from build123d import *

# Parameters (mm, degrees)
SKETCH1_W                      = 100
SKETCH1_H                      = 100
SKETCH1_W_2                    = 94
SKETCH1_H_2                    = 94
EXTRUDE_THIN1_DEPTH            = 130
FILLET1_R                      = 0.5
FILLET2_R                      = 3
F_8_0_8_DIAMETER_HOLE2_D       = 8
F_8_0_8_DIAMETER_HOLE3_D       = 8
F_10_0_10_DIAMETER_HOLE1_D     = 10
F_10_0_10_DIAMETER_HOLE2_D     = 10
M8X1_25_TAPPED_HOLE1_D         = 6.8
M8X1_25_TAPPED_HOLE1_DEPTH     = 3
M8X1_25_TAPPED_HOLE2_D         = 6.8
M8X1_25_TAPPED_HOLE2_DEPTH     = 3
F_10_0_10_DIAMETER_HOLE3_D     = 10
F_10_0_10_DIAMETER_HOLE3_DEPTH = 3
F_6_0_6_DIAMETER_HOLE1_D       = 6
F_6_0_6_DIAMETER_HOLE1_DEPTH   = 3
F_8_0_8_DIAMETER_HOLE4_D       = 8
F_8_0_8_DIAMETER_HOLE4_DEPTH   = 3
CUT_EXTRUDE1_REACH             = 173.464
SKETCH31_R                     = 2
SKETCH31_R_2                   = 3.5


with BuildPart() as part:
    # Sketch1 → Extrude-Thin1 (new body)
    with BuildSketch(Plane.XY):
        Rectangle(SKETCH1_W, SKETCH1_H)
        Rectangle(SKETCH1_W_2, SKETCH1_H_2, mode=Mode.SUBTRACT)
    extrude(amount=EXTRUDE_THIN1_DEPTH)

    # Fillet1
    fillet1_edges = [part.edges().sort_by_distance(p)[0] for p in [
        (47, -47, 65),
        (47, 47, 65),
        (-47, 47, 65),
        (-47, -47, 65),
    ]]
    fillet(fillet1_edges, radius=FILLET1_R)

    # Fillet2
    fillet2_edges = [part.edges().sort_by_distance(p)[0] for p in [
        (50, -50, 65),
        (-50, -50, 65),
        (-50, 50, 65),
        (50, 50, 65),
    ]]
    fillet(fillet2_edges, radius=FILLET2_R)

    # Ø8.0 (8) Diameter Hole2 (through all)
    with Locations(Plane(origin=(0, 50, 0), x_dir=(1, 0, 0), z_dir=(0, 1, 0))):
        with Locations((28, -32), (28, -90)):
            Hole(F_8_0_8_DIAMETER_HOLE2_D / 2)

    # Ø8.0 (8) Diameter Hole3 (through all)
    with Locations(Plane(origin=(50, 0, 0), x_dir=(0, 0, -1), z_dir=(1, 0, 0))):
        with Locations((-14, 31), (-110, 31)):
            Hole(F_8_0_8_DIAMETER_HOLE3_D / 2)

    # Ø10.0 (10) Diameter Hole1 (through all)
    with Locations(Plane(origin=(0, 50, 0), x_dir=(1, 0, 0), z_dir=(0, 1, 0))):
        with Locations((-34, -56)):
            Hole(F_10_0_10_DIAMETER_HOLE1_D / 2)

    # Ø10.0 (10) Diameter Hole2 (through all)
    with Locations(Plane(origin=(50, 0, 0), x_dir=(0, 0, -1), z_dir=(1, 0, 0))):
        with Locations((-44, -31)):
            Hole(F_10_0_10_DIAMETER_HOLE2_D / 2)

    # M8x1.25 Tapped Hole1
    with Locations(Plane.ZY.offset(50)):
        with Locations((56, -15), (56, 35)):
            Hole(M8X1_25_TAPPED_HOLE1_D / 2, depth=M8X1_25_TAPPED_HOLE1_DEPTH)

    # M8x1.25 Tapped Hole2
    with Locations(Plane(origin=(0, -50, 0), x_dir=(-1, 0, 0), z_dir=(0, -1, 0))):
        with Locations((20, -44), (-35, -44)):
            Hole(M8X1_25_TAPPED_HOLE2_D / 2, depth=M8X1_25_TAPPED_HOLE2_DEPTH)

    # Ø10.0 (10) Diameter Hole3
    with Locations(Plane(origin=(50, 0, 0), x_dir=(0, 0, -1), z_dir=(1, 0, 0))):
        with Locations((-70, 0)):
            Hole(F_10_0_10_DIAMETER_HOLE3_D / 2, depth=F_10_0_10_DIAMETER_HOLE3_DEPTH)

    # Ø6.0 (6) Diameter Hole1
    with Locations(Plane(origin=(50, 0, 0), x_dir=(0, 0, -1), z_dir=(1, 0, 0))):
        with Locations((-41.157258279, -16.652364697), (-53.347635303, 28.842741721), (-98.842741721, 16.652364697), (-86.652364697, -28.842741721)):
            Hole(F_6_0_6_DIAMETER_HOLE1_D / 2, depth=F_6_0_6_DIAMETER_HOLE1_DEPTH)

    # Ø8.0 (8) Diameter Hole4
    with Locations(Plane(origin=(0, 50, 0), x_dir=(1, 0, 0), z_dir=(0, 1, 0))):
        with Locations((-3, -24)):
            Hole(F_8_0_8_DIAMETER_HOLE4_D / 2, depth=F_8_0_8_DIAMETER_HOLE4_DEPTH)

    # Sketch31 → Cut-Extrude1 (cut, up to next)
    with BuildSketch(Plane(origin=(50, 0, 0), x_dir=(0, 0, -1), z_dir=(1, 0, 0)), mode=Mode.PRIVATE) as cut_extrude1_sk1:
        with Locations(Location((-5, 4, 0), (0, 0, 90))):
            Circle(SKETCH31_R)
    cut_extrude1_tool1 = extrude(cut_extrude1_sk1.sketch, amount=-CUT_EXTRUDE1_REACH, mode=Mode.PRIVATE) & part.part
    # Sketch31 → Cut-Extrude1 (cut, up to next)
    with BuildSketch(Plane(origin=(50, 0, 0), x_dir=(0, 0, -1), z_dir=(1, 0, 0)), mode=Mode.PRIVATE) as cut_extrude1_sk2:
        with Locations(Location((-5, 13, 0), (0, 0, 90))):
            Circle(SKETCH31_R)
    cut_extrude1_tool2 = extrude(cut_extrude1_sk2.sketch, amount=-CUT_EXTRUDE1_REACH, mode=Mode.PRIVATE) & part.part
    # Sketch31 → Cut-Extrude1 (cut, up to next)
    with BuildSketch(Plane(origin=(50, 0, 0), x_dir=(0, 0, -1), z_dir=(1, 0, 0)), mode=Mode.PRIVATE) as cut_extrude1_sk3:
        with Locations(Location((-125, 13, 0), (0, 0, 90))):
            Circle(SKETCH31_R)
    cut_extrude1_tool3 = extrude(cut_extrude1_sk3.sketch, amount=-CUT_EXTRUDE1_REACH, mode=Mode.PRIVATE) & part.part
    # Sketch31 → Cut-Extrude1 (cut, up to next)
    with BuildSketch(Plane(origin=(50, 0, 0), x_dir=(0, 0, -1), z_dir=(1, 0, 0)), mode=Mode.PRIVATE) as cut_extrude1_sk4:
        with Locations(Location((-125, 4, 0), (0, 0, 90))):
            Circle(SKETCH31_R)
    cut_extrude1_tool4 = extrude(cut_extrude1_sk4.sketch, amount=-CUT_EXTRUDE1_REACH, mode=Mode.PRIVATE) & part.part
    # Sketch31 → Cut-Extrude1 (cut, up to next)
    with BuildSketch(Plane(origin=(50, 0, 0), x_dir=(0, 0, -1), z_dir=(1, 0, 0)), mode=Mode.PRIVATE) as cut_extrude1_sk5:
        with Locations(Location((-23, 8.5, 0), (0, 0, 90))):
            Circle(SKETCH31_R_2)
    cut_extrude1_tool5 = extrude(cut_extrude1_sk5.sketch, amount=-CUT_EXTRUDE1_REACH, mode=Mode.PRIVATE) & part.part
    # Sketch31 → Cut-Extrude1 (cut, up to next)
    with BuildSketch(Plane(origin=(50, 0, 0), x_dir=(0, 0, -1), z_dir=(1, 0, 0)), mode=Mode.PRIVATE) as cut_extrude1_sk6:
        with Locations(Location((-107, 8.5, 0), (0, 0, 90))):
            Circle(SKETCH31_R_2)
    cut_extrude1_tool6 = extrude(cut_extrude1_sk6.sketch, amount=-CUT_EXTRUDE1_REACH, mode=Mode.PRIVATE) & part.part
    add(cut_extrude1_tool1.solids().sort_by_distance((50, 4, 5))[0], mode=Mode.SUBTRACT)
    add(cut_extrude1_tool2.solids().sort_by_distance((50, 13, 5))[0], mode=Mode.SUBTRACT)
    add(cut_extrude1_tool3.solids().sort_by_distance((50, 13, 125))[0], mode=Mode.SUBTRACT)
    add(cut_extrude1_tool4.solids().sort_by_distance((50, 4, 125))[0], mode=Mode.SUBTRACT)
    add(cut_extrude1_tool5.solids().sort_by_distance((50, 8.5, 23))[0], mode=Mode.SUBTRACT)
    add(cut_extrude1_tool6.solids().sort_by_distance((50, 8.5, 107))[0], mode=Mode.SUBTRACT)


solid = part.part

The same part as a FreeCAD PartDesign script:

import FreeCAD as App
import Part
import Sketcher
from FreeCAD import Vector
Q = App.Units.Quantity


def edges_at(feature, points):
    """Names of the edges that pass closest to the given points."""
    edges = feature.Shape.Edges
    near = lambda p: min(range(len(edges)), key=lambda i: edges[i].distToShape(Part.Vertex(*p))[0])
    return sorted({f"Edge{near(p) + 1}" for p in points})

doc = App.newDocument("Part")
body = doc.addObject("PartDesign::Body", "Body")

# Sketch on XY plane
sketch1 = body.newObject("Sketcher::SketchObject", "Sketch")
sketch1.AttachmentSupport = (doc.getObject("XY_Plane"), [""])
sketch1.MapMode = "FlatFace"
sketch1.addGeometry([
    Part.LineSegment(Vector(-50, 50, 0), Vector(-50, -50, 0)),  # 0
    Part.LineSegment(Vector(-50, -50, 0), Vector(50, -50, 0)),  # 1
    Part.LineSegment(Vector(50, -50, 0), Vector(50, 50, 0)),  # 2
    Part.LineSegment(Vector(50, 50, 0), Vector(-50, 50, 0)),  # 3
    Part.LineSegment(Vector(47, -47, 0), Vector(-47, -47, 0)),  # 4
    Part.LineSegment(Vector(-47, -47, 0), Vector(-47, 47, 0)),  # 5
    Part.LineSegment(Vector(-47, 47, 0), Vector(47, 47, 0)),  # 6
    Part.LineSegment(Vector(47, 47, 0), Vector(47, -47, 0)),  # 7
], False)
sketch1.addConstraint([
    Sketcher.Constraint("Coincident", 0, 2, 1, 1),
    Sketcher.Constraint("Coincident", 1, 2, 2, 1),
    Sketcher.Constraint("Coincident", 2, 2, 3, 1),
    Sketcher.Constraint("Coincident", 3, 2, 0, 1),
    Sketcher.Constraint("Coincident", 4, 2, 5, 1),
    Sketcher.Constraint("Coincident", 5, 2, 6, 1),
    Sketcher.Constraint("Coincident", 6, 2, 7, 1),
    Sketcher.Constraint("Coincident", 7, 2, 4, 1),
    Sketcher.Constraint("Vertical", 0),
    Sketcher.Constraint("Horizontal", 1),
    Sketcher.Constraint("Vertical", 2),
    Sketcher.Constraint("Horizontal", 3),
    Sketcher.Constraint("Horizontal", 4),
    Sketcher.Constraint("Vertical", 5),
    Sketcher.Constraint("Horizontal", 6),
    Sketcher.Constraint("Vertical", 7),
    Sketcher.Constraint("Symmetric", 0, 2, 2, 2, -1, 1),
    Sketcher.Constraint("Symmetric", 4, 2, 6, 2, -1, 1),
    Sketcher.Constraint("Equal", 3, 0),
    Sketcher.Constraint("Equal", 6, 5),
    Sketcher.Constraint("DistanceX", 1, 1, 1, 2, Q("100 mm")),
    Sketcher.Constraint("DistanceX", 4, 2, 4, 1, Q("94 mm")),
])
pad1 = body.newObject("PartDesign::Pad", "Pad")
pad1.Profile = sketch1
pad1.Length = 130
doc.recompute()

fillet = body.newObject("PartDesign::Fillet", "Fillet")
fillet.Base = (pad1, edges_at(pad1, [
    (47, -47, 65),
    (47, 47, 65),
    (-47, 47, 65),
    (-47, -47, 65),
]))
fillet.Radius = 0.5
doc.recompute()

fillet2 = body.newObject("PartDesign::Fillet", "Fillet001")
fillet2.Base = (fillet, edges_at(fillet, [
    (50, -50, 65),
    (-50, -50, 65),
    (-50, 50, 65),
    (50, 50, 65),
]))
fillet2.Radius = 3

# Sketch on XZ plane
sketch2 = body.newObject("Sketcher::SketchObject", "Sketch001")
sketch2.AttachmentSupport = (doc.getObject("XZ_Plane"), [""])
sketch2.MapMode = "FlatFace"
sketch2.AttachmentOffset = App.Placement(Vector(0, 0, -50), App.Rotation())
sketch2.addGeometry([
    Part.Circle(Vector(28, 32, 0), Vector(0, 0, 1), 4),
    Part.Circle(Vector(28, 90, 0), Vector(0, 0, 1), 4),
], False)
sketch2.addConstraint([
    Sketcher.Constraint("Equal", 0, 1),
    Sketcher.Constraint("Vertical", 0, 3, 1, 3),
    Sketcher.Constraint("Diameter", 0, Q("8 mm")),
    Sketcher.Constraint("DistanceX", -1, 1, 0, 3, Q("28 mm")),
    Sketcher.Constraint("DistanceY", -1, 1, 0, 3, Q("32 mm")),
    Sketcher.Constraint("DistanceY", -1, 1, 1, 3, Q("90 mm")),
])
doc.recompute()
hole = body.newObject("PartDesign::Hole", "Hole")
hole.Profile = sketch2
hole.ThreadType = "None"
hole.Diameter = 8
hole.DepthType = "ThroughAll"
hole.Reversed = True

# Sketch on YZ plane
sketch3 = body.newObject("Sketcher::SketchObject", "Sketch002")
sketch3.AttachmentSupport = (doc.getObject("YZ_Plane"), [""])
sketch3.MapMode = "FlatFace"
sketch3.AttachmentOffset = App.Placement(Vector(0, 0, 50), App.Rotation())
sketch3.addGeometry([
    Part.Circle(Vector(31, 14, 0), Vector(0, 0, 1), 4),
    Part.Circle(Vector(31, 110, 0), Vector(0, 0, 1), 4),
], False)
sketch3.addConstraint([
    Sketcher.Constraint("Equal", 0, 1),
    Sketcher.Constraint("Vertical", 0, 3, 1, 3),
    Sketcher.Constraint("Diameter", 0, Q("8 mm")),
    Sketcher.Constraint("DistanceX", -1, 1, 0, 3, Q("31 mm")),
    Sketcher.Constraint("DistanceY", -1, 1, 0, 3, Q("14 mm")),
    Sketcher.Constraint("DistanceY", -1, 1, 1, 3, Q("110 mm")),
])
doc.recompute()
hole2 = body.newObject("PartDesign::Hole", "Hole001")
hole2.Profile = sketch3
hole2.ThreadType = "None"
hole2.Diameter = 8
hole2.DepthType = "ThroughAll"

# Sketch on XZ plane
sketch4 = body.newObject("Sketcher::SketchObject", "Sketch003")
sketch4.AttachmentSupport = (doc.getObject("XZ_Plane"), [""])
sketch4.MapMode = "FlatFace"
sketch4.AttachmentOffset = App.Placement(Vector(0, 0, -50), App.Rotation())
sketch4.addGeometry(Part.Circle(Vector(-34, 56, 0), Vector(0, 0, 1), 5), False)
sketch4.addConstraint([
    Sketcher.Constraint("Diameter", 0, Q("10 mm")),
    Sketcher.Constraint("DistanceX", 0, 3, -1, 1, Q("34 mm")),
    Sketcher.Constraint("DistanceY", -1, 1, 0, 3, Q("56 mm")),
])
doc.recompute()
hole3 = body.newObject("PartDesign::Hole", "Hole002")
hole3.Profile = sketch4
hole3.ThreadType = "None"
hole3.Diameter = 10
hole3.DepthType = "ThroughAll"
hole3.Reversed = True

# Sketch on YZ plane
sketch5 = body.newObject("Sketcher::SketchObject", "Sketch004")
sketch5.AttachmentSupport = (doc.getObject("YZ_Plane"), [""])
sketch5.MapMode = "FlatFace"
sketch5.AttachmentOffset = App.Placement(Vector(0, 0, 50), App.Rotation())
sketch5.addGeometry(Part.Circle(Vector(-31, 44, 0), Vector(0, 0, 1), 5), False)
sketch5.addConstraint([
    Sketcher.Constraint("Diameter", 0, Q("10 mm")),
    Sketcher.Constraint("DistanceX", 0, 3, -1, 1, Q("31 mm")),
    Sketcher.Constraint("DistanceY", -1, 1, 0, 3, Q("44 mm")),
])
doc.recompute()
hole4 = body.newObject("PartDesign::Hole", "Hole003")
hole4.Profile = sketch5
hole4.ThreadType = "None"
hole4.Diameter = 10
hole4.DepthType = "ThroughAll"

# Sketch on YZ plane
sketch6 = body.newObject("Sketcher::SketchObject", "Sketch005")
sketch6.AttachmentSupport = (doc.getObject("YZ_Plane"), [""])
sketch6.MapMode = "FlatFace"
sketch6.AttachmentOffset = App.Placement(Vector(0, 0, -50), App.Rotation())
sketch6.addGeometry([
    Part.Circle(Vector(-15, 56, 0), Vector(0, 0, 1), 3.4),
    Part.Circle(Vector(35, 56, 0), Vector(0, 0, 1), 3.4),
], False)
sketch6.addConstraint([
    Sketcher.Constraint("Equal", 0, 1),
    Sketcher.Constraint("Horizontal", 0, 3, 1, 3),
    Sketcher.Constraint("Diameter", 0, Q("6.8 mm")),
    Sketcher.Constraint("DistanceX", 0, 3, -1, 1, Q("15 mm")),
    Sketcher.Constraint("DistanceY", -1, 1, 0, 3, Q("56 mm")),
    Sketcher.Constraint("DistanceX", -1, 1, 1, 3, Q("35 mm")),
])
doc.recompute()
hole5 = body.newObject("PartDesign::Hole", "Hole004")
hole5.Profile = sketch6
hole5.ThreadType = "None"
hole5.Diameter = 6.8
hole5.DepthType = "Dimension"
hole5.Depth = 3
hole5.DrillPoint = "Flat"
hole5.Reversed = True

# Sketch on XZ plane
sketch7 = body.newObject("Sketcher::SketchObject", "Sketch006")
sketch7.AttachmentSupport = (doc.getObject("XZ_Plane"), [""])
sketch7.MapMode = "FlatFace"
sketch7.AttachmentOffset = App.Placement(Vector(0, 0, 50), App.Rotation())
sketch7.addGeometry([
    Part.Circle(Vector(-20, 44, 0), Vector(0, 0, 1), 3.4),
    Part.Circle(Vector(35, 44, 0), Vector(0, 0, 1), 3.4),
], False)
sketch7.addConstraint([
    Sketcher.Constraint("Equal", 0, 1),
    Sketcher.Constraint("Horizontal", 0, 3, 1, 3),
    Sketcher.Constraint("Diameter", 0, Q("6.8 mm")),
    Sketcher.Constraint("DistanceX", 0, 3, -1, 1, Q("20 mm")),
    Sketcher.Constraint("DistanceY", -1, 1, 0, 3, Q("44 mm")),
    Sketcher.Constraint("DistanceX", -1, 1, 1, 3, Q("35 mm")),
])
doc.recompute()
hole6 = body.newObject("PartDesign::Hole", "Hole005")
hole6.Profile = sketch7
hole6.ThreadType = "None"
hole6.Diameter = 6.8
hole6.DepthType = "Dimension"
hole6.Depth = 3
hole6.DrillPoint = "Flat"

# Sketch on YZ plane
sketch8 = body.newObject("Sketcher::SketchObject", "Sketch007")
sketch8.AttachmentSupport = (doc.getObject("YZ_Plane"), [""])
sketch8.MapMode = "FlatFace"
sketch8.AttachmentOffset = App.Placement(Vector(0, 0, 50), App.Rotation())
sketch8.addGeometry(Part.Circle(Vector(0, 70, 0), Vector(0, 0, 1), 5), False)
sketch8.addConstraint([
    Sketcher.Constraint("PointOnObject", 0, 3, -2),
    Sketcher.Constraint("Diameter", 0, Q("10 mm")),
    Sketcher.Constraint("DistanceY", -1, 1, 0, 3, Q("70 mm")),
])
doc.recompute()
hole7 = body.newObject("PartDesign::Hole", "Hole006")
hole7.Profile = sketch8
hole7.ThreadType = "None"
hole7.Diameter = 10
hole7.DepthType = "Dimension"
hole7.Depth = 3
hole7.DrillPoint = "Flat"

# Sketch on YZ plane
sketch9 = body.newObject("Sketcher::SketchObject", "Sketch008")
sketch9.AttachmentSupport = (doc.getObject("YZ_Plane"), [""])
sketch9.MapMode = "FlatFace"
sketch9.AttachmentOffset = App.Placement(Vector(0, 0, 50), App.Rotation())
sketch9.addGeometry([
    Part.Circle(Vector(-16.7, 41.2, 0), Vector(0, 0, 1), 3),
    Part.Circle(Vector(28.8, 53.3, 0), Vector(0, 0, 1), 3),
    Part.Circle(Vector(16.7, 98.8, 0), Vector(0, 0, 1), 3),
    Part.Circle(Vector(-28.8, 86.7, 0), Vector(0, 0, 1), 3),
], False)
sketch9.addConstraint([
    Sketcher.Constraint("Equal", 0, 1),
    Sketcher.Constraint("Equal", 1, 2),
    Sketcher.Constraint("Equal", 2, 3),
    Sketcher.Constraint("Diameter", 0, Q("6 mm")),
    Sketcher.Constraint("DistanceY", -1, 1, 0, 3, Q("41.157258 mm")),
    Sketcher.Constraint("DistanceX", -1, 1, 1, 3, Q("28.842742 mm")),
    Sketcher.Constraint("DistanceY", -1, 1, 2, 3, Q("98.842742 mm")),
    Sketcher.Constraint("DistanceX", 3, 3, -1, 1, Q("28.842742 mm")),
    Sketcher.Constraint("DistanceX", 0, 3, 2, 3, Q("33.304729 mm")),
    Sketcher.Constraint("DistanceY", 1, 3, 3, 3, Q("33.304729 mm")),
    Sketcher.Constraint("DistanceX", 0, 3, -1, 1, Q("16.652365 mm")),
    Sketcher.Constraint("DistanceY", -1, 1, 1, 3, Q("53.347635 mm")),
])
doc.recompute()
hole8 = body.newObject("PartDesign::Hole", "Hole007")
hole8.Profile = sketch9
hole8.ThreadType = "None"
hole8.Diameter = 6
hole8.DepthType = "Dimension"
hole8.Depth = 3
hole8.DrillPoint = "Flat"

# Sketch on XZ plane
sketch10 = body.newObject("Sketcher::SketchObject", "Sketch009")
sketch10.AttachmentSupport = (doc.getObject("XZ_Plane"), [""])
sketch10.MapMode = "FlatFace"
sketch10.AttachmentOffset = App.Placement(Vector(0, 0, -50), App.Rotation())
sketch10.addGeometry(Part.Circle(Vector(-3, 24, 0), Vector(0, 0, 1), 4), False)
sketch10.addConstraint([
    Sketcher.Constraint("Diameter", 0, Q("8 mm")),
    Sketcher.Constraint("DistanceX", 0, 3, -1, 1, Q("3 mm")),
    Sketcher.Constraint("DistanceY", -1, 1, 0, 3, Q("24 mm")),
])
doc.recompute()
hole9 = body.newObject("PartDesign::Hole", "Hole008")
hole9.Profile = sketch10
hole9.ThreadType = "None"
hole9.Diameter = 8
hole9.DepthType = "Dimension"
hole9.Depth = 3
hole9.DrillPoint = "Flat"
hole9.Reversed = True

# Sketch on YZ plane
sketch11 = body.newObject("Sketcher::SketchObject", "Sketch010")
sketch11.AttachmentSupport = (doc.getObject("YZ_Plane"), [""])
sketch11.MapMode = "FlatFace"
sketch11.AttachmentOffset = App.Placement(Vector(0, 0, 50), App.Rotation())
sketch11.addGeometry(Part.Circle(Vector(4, 5, 0), Vector(0, 0, 1), 2), False)
sketch11.addConstraint([
    Sketcher.Constraint("Diameter", 0, Q("4 mm")),
    Sketcher.Constraint("DistanceX", -1, 1, 0, 3, Q("4 mm")),
    Sketcher.Constraint("DistanceY", -1, 1, 0, 3, Q("5 mm")),
])
pocket1 = body.newObject("PartDesign::Pocket", "Pocket")
pocket1.Profile = sketch11
pocket1.Type = "UpToFirst"

# Sketch on YZ plane
sketch12 = body.newObject("Sketcher::SketchObject", "Sketch011")
sketch12.AttachmentSupport = (doc.getObject("YZ_Plane"), [""])
sketch12.MapMode = "FlatFace"
sketch12.AttachmentOffset = App.Placement(Vector(0, 0, 50), App.Rotation())
sketch12.addGeometry(Part.Circle(Vector(13, 5, 0), Vector(0, 0, 1), 2), False)
sketch12.addConstraint([
    Sketcher.Constraint("Diameter", 0, Q("4 mm")),
    Sketcher.Constraint("DistanceX", -1, 1, 0, 3, Q("13 mm")),
    Sketcher.Constraint("DistanceY", -1, 1, 0, 3, Q("5 mm")),
])
pocket2 = body.newObject("PartDesign::Pocket", "Pocket001")
pocket2.Profile = sketch12
pocket2.Type = "UpToFirst"

# Sketch on YZ plane
sketch13 = body.newObject("Sketcher::SketchObject", "Sketch012")
sketch13.AttachmentSupport = (doc.getObject("YZ_Plane"), [""])
sketch13.MapMode = "FlatFace"
sketch13.AttachmentOffset = App.Placement(Vector(0, 0, 50), App.Rotation())
sketch13.addGeometry(Part.Circle(Vector(13, 125, 0), Vector(0, 0, 1), 2), False)
sketch13.addConstraint([
    Sketcher.Constraint("Diameter", 0, Q("4 mm")),
    Sketcher.Constraint("DistanceX", -1, 1, 0, 3, Q("13 mm")),
    Sketcher.Constraint("DistanceY", -1, 1, 0, 3, Q("125 mm")),
])
pocket3 = body.newObject("PartDesign::Pocket", "Pocket002")
pocket3.Profile = sketch13
pocket3.Type = "UpToFirst"

# Sketch on YZ plane
sketch14 = body.newObject("Sketcher::SketchObject", "Sketch013")
sketch14.AttachmentSupport = (doc.getObject("YZ_Plane"), [""])
sketch14.MapMode = "FlatFace"
sketch14.AttachmentOffset = App.Placement(Vector(0, 0, 50), App.Rotation())
sketch14.addGeometry(Part.Circle(Vector(4, 125, 0), Vector(0, 0, 1), 2), False)
sketch14.addConstraint([
    Sketcher.Constraint("Diameter", 0, Q("4 mm")),
    Sketcher.Constraint("DistanceX", -1, 1, 0, 3, Q("4 mm")),
    Sketcher.Constraint("DistanceY", -1, 1, 0, 3, Q("125 mm")),
])
pocket4 = body.newObject("PartDesign::Pocket", "Pocket003")
pocket4.Profile = sketch14
pocket4.Type = "UpToFirst"

# Sketch on YZ plane
sketch15 = body.newObject("Sketcher::SketchObject", "Sketch014")
sketch15.AttachmentSupport = (doc.getObject("YZ_Plane"), [""])
sketch15.MapMode = "FlatFace"
sketch15.AttachmentOffset = App.Placement(Vector(0, 0, 50), App.Rotation())
sketch15.addGeometry(Part.Circle(Vector(8.5, 23, 0), Vector(0, 0, 1), 3.5), False)
sketch15.addConstraint([
    Sketcher.Constraint("Diameter", 0, Q("7 mm")),
    Sketcher.Constraint("DistanceY", -1, 1, 0, 3, Q("23 mm")),
    Sketcher.Constraint("DistanceX", -1, 1, 0, 3, Q("8.5 mm")),
])
pocket5 = body.newObject("PartDesign::Pocket", "Pocket004")
pocket5.Profile = sketch15
pocket5.Type = "UpToFirst"

# Sketch on YZ plane
sketch16 = body.newObject("Sketcher::SketchObject", "Sketch015")
sketch16.AttachmentSupport = (doc.getObject("YZ_Plane"), [""])
sketch16.MapMode = "FlatFace"
sketch16.AttachmentOffset = App.Placement(Vector(0, 0, 50), App.Rotation())
sketch16.addGeometry(Part.Circle(Vector(8.5, 107, 0), Vector(0, 0, 1), 3.5), False)
sketch16.addConstraint([
    Sketcher.Constraint("Diameter", 0, Q("7 mm")),
    Sketcher.Constraint("DistanceY", -1, 1, 0, 3, Q("107 mm")),
    Sketcher.Constraint("DistanceX", -1, 1, 0, 3, Q("8.5 mm")),
])
pocket6 = body.newObject("PartDesign::Pocket", "Pocket005")
pocket6.Profile = sketch16
pocket6.Type = "UpToFirst"

doc.recompute()
